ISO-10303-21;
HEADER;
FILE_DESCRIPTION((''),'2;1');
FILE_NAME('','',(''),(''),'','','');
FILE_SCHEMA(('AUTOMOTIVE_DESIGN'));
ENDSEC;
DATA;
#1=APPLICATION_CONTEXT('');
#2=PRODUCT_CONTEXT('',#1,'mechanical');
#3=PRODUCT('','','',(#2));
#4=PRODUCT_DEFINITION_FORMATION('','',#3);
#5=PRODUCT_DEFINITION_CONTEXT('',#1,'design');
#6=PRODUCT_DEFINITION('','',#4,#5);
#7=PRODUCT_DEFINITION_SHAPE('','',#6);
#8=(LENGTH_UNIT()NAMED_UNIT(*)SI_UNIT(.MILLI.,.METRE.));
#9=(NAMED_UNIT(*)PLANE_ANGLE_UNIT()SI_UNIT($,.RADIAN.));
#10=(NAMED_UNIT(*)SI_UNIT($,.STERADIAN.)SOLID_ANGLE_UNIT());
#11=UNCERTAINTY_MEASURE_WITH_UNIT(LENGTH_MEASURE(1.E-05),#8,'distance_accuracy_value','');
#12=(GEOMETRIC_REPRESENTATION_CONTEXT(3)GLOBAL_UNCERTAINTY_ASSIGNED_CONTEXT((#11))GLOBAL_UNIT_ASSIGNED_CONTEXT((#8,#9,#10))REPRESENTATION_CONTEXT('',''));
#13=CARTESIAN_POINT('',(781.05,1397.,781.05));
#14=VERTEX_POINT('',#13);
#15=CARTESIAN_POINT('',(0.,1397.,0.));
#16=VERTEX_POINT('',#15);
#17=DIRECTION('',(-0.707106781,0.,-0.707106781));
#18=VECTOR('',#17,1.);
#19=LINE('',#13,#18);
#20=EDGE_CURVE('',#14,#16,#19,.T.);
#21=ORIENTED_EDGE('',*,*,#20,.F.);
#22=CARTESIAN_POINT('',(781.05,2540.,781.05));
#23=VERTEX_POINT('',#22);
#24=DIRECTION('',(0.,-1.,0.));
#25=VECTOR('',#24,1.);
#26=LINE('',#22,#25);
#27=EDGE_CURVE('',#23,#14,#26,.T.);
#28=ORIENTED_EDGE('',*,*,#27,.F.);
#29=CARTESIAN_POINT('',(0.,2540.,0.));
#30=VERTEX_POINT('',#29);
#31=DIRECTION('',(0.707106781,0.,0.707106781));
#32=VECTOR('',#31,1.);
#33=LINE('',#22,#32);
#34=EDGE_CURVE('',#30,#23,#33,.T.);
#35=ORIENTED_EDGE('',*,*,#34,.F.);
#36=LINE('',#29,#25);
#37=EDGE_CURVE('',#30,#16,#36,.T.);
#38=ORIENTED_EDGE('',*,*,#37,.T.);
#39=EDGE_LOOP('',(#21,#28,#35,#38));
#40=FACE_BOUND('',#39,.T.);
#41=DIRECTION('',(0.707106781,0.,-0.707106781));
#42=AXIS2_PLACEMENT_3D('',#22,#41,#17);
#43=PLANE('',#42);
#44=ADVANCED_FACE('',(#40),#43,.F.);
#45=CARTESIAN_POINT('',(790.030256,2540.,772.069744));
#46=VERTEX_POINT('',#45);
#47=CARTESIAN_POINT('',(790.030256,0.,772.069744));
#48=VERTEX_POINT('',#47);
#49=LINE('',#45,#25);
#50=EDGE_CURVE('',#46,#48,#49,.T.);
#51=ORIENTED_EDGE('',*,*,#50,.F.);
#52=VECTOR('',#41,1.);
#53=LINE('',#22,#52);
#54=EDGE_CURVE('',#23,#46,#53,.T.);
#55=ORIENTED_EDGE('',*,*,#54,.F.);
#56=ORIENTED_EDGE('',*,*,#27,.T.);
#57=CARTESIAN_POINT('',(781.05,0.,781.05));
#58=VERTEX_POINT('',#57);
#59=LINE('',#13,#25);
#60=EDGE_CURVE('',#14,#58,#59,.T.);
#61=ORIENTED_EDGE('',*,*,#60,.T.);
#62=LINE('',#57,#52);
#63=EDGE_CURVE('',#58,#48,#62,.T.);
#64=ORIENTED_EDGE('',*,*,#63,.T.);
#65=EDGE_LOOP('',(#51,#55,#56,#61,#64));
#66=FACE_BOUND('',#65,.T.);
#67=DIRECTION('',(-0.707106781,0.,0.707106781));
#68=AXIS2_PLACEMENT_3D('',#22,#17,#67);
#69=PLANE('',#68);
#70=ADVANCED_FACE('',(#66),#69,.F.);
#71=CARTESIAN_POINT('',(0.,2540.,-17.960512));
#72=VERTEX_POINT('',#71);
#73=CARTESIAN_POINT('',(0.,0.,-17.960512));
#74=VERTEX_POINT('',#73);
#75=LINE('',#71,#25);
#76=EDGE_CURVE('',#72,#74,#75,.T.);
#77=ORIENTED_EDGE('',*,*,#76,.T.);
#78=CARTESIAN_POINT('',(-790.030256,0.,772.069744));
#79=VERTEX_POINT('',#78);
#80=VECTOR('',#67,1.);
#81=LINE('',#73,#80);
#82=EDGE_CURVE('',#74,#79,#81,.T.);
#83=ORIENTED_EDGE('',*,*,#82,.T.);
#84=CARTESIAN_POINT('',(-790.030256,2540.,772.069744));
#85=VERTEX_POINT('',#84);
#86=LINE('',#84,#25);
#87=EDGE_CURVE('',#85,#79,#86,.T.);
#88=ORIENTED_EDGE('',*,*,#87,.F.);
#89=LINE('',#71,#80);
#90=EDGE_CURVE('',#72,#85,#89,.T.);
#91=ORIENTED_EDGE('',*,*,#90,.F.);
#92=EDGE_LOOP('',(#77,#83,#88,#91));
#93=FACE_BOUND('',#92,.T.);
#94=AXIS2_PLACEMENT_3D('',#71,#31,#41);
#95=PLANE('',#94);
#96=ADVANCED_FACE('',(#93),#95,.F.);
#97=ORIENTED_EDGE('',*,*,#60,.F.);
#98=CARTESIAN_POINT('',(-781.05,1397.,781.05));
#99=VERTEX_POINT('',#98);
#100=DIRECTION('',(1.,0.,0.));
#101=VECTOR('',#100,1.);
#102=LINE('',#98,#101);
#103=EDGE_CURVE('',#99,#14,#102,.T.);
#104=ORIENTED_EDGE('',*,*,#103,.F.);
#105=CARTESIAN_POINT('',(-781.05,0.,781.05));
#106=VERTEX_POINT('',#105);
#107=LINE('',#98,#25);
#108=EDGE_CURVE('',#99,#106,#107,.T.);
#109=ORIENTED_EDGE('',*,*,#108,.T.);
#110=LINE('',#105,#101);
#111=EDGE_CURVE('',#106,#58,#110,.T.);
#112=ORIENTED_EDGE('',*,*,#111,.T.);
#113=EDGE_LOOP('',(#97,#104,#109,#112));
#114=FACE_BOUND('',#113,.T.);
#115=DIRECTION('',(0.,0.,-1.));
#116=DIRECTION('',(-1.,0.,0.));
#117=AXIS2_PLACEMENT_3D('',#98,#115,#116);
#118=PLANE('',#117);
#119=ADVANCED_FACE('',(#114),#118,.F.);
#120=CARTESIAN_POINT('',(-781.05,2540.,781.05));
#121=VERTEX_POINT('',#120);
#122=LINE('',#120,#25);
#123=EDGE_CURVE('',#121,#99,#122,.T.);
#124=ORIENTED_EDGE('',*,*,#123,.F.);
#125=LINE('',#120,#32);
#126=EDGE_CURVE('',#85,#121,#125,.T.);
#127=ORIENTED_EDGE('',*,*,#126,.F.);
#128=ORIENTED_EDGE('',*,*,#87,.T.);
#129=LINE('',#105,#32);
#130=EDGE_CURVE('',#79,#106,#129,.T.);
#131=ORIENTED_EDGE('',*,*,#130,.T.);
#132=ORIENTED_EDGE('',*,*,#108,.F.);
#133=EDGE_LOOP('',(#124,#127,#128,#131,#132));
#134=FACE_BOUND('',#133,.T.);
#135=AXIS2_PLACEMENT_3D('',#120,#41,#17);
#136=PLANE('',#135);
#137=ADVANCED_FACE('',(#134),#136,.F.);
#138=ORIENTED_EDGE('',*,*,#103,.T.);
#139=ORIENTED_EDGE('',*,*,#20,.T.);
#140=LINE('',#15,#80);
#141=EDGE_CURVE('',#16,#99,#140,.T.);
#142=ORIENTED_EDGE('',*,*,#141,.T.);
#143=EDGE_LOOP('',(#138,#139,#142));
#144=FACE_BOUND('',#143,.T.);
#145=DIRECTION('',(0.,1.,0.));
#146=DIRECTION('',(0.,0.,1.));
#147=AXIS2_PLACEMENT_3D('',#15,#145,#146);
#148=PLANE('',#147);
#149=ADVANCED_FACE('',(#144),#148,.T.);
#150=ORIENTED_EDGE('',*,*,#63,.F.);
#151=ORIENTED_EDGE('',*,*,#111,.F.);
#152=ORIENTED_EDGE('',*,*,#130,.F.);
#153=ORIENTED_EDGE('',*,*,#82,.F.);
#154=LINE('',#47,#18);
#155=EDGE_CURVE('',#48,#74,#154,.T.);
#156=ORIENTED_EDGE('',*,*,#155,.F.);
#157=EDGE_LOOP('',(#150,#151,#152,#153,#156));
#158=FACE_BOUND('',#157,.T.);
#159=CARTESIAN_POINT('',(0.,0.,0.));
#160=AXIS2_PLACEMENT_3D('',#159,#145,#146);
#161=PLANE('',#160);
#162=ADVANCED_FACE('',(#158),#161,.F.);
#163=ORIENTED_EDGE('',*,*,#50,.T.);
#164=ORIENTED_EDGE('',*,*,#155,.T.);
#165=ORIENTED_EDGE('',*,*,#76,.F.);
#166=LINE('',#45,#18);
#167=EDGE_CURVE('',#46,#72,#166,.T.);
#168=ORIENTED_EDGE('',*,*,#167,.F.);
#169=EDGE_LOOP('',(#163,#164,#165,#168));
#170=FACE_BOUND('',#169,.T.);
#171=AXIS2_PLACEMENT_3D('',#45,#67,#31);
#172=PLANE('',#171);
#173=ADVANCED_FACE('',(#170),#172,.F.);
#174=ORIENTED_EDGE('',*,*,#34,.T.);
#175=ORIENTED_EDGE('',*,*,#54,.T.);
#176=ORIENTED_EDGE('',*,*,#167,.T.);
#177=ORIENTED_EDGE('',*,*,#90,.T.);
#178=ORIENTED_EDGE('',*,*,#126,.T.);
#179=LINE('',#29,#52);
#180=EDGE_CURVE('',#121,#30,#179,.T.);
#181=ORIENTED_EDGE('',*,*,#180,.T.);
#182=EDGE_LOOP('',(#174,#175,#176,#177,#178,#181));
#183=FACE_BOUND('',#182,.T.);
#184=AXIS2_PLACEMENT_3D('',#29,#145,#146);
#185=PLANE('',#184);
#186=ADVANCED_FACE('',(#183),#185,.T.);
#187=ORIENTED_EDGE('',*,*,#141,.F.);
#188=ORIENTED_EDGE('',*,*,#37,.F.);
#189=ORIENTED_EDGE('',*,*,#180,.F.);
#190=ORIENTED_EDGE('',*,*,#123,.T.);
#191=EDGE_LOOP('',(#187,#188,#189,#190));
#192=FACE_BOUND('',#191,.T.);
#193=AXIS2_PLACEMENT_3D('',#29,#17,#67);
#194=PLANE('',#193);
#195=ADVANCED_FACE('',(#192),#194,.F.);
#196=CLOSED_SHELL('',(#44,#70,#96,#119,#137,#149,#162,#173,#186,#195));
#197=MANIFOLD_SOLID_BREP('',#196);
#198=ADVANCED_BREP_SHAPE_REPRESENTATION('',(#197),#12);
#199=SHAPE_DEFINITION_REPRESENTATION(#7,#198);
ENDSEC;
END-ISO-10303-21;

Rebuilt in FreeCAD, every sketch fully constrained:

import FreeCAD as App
import Part
import Sketcher
Q = App.Units.Quantity

doc = App.newDocument("Part")
params = doc.addObject("Spreadsheet::Sheet", "Params")
for row, (alias, value) in enumerate([
    ("sketch1_width", "61.5 in"),
    ("pad1_length", "55 in"),
    ("sketch2_length", "0.5 in"),
    ("pad2_length", "100 in"),
], start=1):
    params.set(f"A{row}", alias)
    params.set(f"B{row}", "=" + value)
    params.setAlias(f"B{row}", alias)

body = doc.addObject("PartDesign::Body", "Body")

sketch1 = body.newObject("Sketcher::SketchObject", "Sketch")
sketch1.AttachmentSupport = (doc.getObject("XZ_Plane"), [""])
sketch1.MapMode = "FlatFace"
sketch1.addGeometry(Part.LineSegment(App.Vector(0, 0, 0), App.Vector(-781.05, 781.05, 0)), False)
sketch1.addGeometry(Part.LineSegment(App.Vector(-781.05, 781.05, 0), App.Vector(781.05, 781.05, 0)), False)
sketch1.addGeometry(Part.LineSegment(App.Vector(781.05, 781.05, 0), App.Vector(0, 0, 0)), False)
sketch1.addConstraint(Sketcher.Constraint("Coincident", 0, 2, 1, 1))
sketch1.addConstraint(Sketcher.Constraint("Coincident", 1, 2, 2, 1))
sketch1.addConstraint(Sketcher.Constraint("Coincident", 2, 2, 0, 1))
sketch1.addConstraint(Sketcher.Constraint("Horizontal", 1))
sketch1.addConstraint(Sketcher.Constraint("Coincident", 2, 2, -1, 1))
sketch1.addConstraint(Sketcher.Constraint("Perpendicular", 0, 2))
sketch1.addConstraint(Sketcher.Constraint("Equal", 0, 2))
sketch1.addConstraint(Sketcher.Constraint("DistanceX", 1, 1, 1, 2, Q("61.5 in")))
sketch1.setExpression("Constraints[7]", "Params.sketch1_width")
pad1 = body.newObject("PartDesign::Pad", "Pad")
pad1.Profile = sketch1
pad1.setExpression("Length", "Params.pad1_length")
pad1.Reversed = True

sketch2 = body.newObject("Sketcher::SketchObject", "Sketch001")
sketch2.AttachmentSupport = (doc.getObject("XZ_Plane"), [""])
sketch2.MapMode = "FlatFace"
sketch2.addGeometry(Part.LineSegment(App.Vector(790.030256, 772.069744, 0), App.Vector(0, -17.960512, 0)), False)
sketch2.addGeometry(Part.LineSegment(App.Vector(0, -17.960512, 0), App.Vector(-790.030256, 772.069744, 0)), False)
sketch2.addGeometry(Part.LineSegment(App.Vector(-790.030256, 772.069744, 0), App.Vector(-781.05, 781.05, 0)), False)
sketch2.addGeometry(Part.LineSegment(App.Vector(-781.05, 781.05, 0), App.Vector(0, 0, 0)), False)
sketch2.addGeometry(Part.LineSegment(App.Vector(0, 0, 0), App.Vector(781.05, 781.05, 0)), False)
sketch2.addGeometry(Part.LineSegment(App.Vector(781.05, 781.05, 0), App.Vector(790.030256, 772.069744, 0)), False)
sketch2.addConstraint(Sketcher.Constraint("Coincident", 0, 2, 1, 1))
sketch2.addConstraint(Sketcher.Constraint("Coincident", 1, 2, 2, 1))
sketch2.addConstraint(Sketcher.Constraint("Coincident", 2, 2, 3, 1))
sketch2.addConstraint(Sketcher.Constraint("Coincident", 3, 2, 4, 1))
sketch2.addConstraint(Sketcher.Constraint("Coincident", 4, 2, 5, 1))
sketch2.addConstraint(Sketcher.Constraint("Coincident", 5, 2, 0, 1))
sketch2.addConstraint(Sketcher.Constraint("Coincident", 3, 2, -1, 1))
sketch2.addConstraint(Sketcher.Constraint("Symmetric", 2, 2, 4, 2, -2))
sketch2.addConstraint(Sketcher.Constraint("Symmetric", 1, 2, 5, 2, -2))
sketch2.addConstraint(Sketcher.Constraint("PointOnObject", 0, 2, -2))
sketch2.addConstraint(Sketcher.Constraint("Perpendicular", 0, 1))
sketch2.addConstraint(Sketcher.Constraint("Perpendicular", 1, 2))
sketch2.addConstraint(Sketcher.Constraint("Perpendicular", 2, 3))
sketch2.addConstraint(Sketcher.Constraint("Distance", 2, Q("0.5 in")))
sketch2.addConstraint(Sketcher.Constraint("DistanceX", 2, 2, 4, 2, Q("61.5 in")))
sketch2.setExpression("Constraints[13]", "Params.sketch2_length")
pad2 = body.newObject("PartDesign::Pad", "Pad001")
pad2.Profile = sketch2
pad2.setExpression("Length", "Params.pad2_length")
pad2.Reversed = True

doc.recompute()
